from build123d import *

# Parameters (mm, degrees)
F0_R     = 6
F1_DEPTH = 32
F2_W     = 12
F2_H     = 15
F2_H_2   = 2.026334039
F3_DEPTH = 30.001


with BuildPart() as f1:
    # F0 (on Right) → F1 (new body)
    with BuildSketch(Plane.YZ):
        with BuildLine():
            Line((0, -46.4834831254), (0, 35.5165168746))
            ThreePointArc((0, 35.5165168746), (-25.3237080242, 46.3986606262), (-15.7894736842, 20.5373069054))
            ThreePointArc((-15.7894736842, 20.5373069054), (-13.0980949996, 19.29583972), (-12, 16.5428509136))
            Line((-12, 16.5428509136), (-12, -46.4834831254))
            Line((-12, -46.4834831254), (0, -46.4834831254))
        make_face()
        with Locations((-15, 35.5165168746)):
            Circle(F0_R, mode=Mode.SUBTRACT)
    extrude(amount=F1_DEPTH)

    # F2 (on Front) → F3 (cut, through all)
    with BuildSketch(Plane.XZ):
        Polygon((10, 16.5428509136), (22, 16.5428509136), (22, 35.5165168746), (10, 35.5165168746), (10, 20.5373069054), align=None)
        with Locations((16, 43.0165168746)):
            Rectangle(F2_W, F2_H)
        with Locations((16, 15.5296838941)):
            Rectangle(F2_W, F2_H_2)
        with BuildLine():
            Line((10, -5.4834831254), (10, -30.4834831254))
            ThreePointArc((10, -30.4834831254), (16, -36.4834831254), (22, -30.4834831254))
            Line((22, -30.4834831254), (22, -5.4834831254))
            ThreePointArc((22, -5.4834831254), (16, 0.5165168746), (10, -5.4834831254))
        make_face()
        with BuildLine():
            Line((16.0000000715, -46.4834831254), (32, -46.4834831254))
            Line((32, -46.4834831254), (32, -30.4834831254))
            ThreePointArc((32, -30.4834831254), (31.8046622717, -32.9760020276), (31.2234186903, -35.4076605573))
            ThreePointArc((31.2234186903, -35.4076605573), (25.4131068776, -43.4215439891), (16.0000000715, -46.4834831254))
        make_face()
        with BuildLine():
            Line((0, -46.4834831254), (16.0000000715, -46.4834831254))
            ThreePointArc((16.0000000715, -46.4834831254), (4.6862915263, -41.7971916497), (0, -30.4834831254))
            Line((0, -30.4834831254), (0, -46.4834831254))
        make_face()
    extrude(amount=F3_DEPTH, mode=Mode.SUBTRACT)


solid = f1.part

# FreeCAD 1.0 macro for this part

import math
import FreeCAD as App
import Part
import Sketcher
from FreeCAD import Vector
Q = App.Units.Quantity


def add_polygon(sketch, points):
    """Adds a closed chain of lines whose ends are joined by coincident constraints."""
    first, n = sketch.GeometryCount, len(points)
    for a, b in zip(points, points[1:] + points[:1]):
        sketch.addGeometry(Part.LineSegment(App.Vector(*a, 0), App.Vector(*b, 0)), False)
    for i in range(n):
        sketch.addConstraint(Sketcher.Constraint("Coincident", first + i, 2, first + (i + 1) % n, 1))

doc = App.newDocument("Part")
params = doc.addObject("Spreadsheet::Sheet", "Params")
for row, (alias, value) in enumerate([
    ("sketch1_diameter", "12 mm"),
    ("sketch1_radius", "15 mm"),
    ("sketch1_radius2", "4 mm"),
    ("sketch1_width", "12 mm"),
    ("sketch1_height", "82 mm"),
    ("pad1_length", "32 mm"),
    ("sketch2_radius", "6 mm"),
    ("sketch2_radius2", "16 mm"),
    ("sketch2_height", "36 mm"),
    ("sketch2_height2", "25 mm"),
], start=1):
    params.set(f"A{row}", alias)
    params.set(f"B{row}", "=" + value)
    params.setAlias(f"B{row}", alias)

body = doc.addObject("PartDesign::Body", "Body")

# Sketch on YZ plane
sketch1 = doc.addObject("Sketcher::SketchObject", "Sketch")
body.addObject(sketch1)
sketch1.AttachmentSupport = (doc.YZ_Plane, [""])
sketch1.MapMode = "FlatFace"
sketch1.addGeometry(Part.LineSegment(Vector(0, -46.5, 0), Vector(0, 35.5, 0)), False)
sketch1.addGeometry(Part.ArcOfCircle(Part.Circle(Vector(-15, 35.5, 0), Vector(0, 0, 1), 15), math.radians(0), math.radians(267)), False)
sketch1.addGeometry(Part.ArcOfCircle(Part.Circle(Vector(-16, 16.5, 0), Vector(0, 0, 1), 4), math.radians(0), math.radians(87)), False)
sketch1.addGeometry(Part.LineSegment(Vector(-12, 16.5, 0), Vector(-12, -46.5, 0)), False)
sketch1.addGeometry(Part.LineSegment(Vector(-12, -46.5, 0), Vector(0, -46.5, 0)), False)
sketch1.addGeometry(Part.Circle(Vector(-15, 35.5, 0), Vector(0, 0, 1), 6), False)
sketch1.addConstraint(Sketcher.Constraint("Tangent", 0, 2, 1, 1))
sketch1.addConstraint(Sketcher.Constraint("Tangent", 1, 2, 2, 2))
sketch1.addConstraint(Sketcher.Constraint("Tangent", 2, 1, 3, 1))
sketch1.addConstraint(Sketcher.Constraint("Coincident", 3, 2, 4, 1))
sketch1.addConstraint(Sketcher.Constraint("Coincident", 4, 2, 0, 1))
sketch1.addConstraint(Sketcher.Constraint("Vertical", 0))
sketch1.addConstraint(Sketcher.Constraint("Vertical", 3))
sketch1.addConstraint(Sketcher.Constraint("Horizontal", 4))
sketch1.addConstraint(Sketcher.Constraint("Coincident", 5, 3, 1, 3))
sketch1.addConstraint(Sketcher.Constraint("PointOnObject", 0, 2, -2))
sketch1.addConstraint(Sketcher.Constraint("Diameter", 5, Q("12 mm")))
sketch1.addConstraint(Sketcher.Constraint("Radius", 1, Q("15 mm")))
sketch1.addConstraint(Sketcher.Constraint("Radius", 2, Q("4 mm")))
sketch1.addConstraint(Sketcher.Constraint("DistanceX", 4, 1, 4, 2, Q("12 mm")))
sketch1.addConstraint(Sketcher.Constraint("DistanceY", 0, 1, 0, 2, Q("82 mm")))
sketch1.addConstraint(Sketcher.Constraint("DistanceY", -1, 1, 2, 3, Q("16.542851 mm")))
sketch1.setExpression("Constraints[10]", "Params.sketch1_diameter")
sketch1.setExpression("Constraints[11]", "Params.sketch1_radius")
sketch1.setExpression("Constraints[12]", "Params.sketch1_radius2")
sketch1.setExpression("Constraints[13]", "Params.sketch1_width")
sketch1.setExpression("Constraints[14]", "Params.sketch1_height")
pad1 = doc.addObject("PartDesign::Pad", "Pad")
body.addObject(pad1)
pad1.Profile = sketch1
pad1.setExpression("Length", "Params.pad1_length")

# Sketch on XZ plane
sketch2 = doc.addObject("Sketcher::SketchObject", "Sketch001")
body.addObject(sketch2)
sketch2.AttachmentSupport = (doc.XZ_Plane, [""])
sketch2.MapMode = "FlatFace"
add_polygon(sketch2, [(22, 50.5), (10, 50.5), (10, 14.5), (22, 14.5)])  # lines 0-3
sketch2.addGeometry(Part.LineSegment(Vector(10, -5.5, 0), Vector(10, -30.5, 0)), False)  # 4
sketch2.addGeometry(Part.ArcOfCircle(Part.Circle(Vector(16, -30.5, 0), Vector(0, 0, 1), 6), math.radians(180), math.radians(360)), False)  # 5
sketch2.addGeometry(Part.LineSegment(Vector(22, -30.5, 0), Vector(22, -5.5, 0)), False)  # 6
sketch2.addGeometry(Part.ArcOfCircle(Part.Circle(Vector(16, -5.5, 0), Vector(0, 0, 1), 6), math.radians(0), math.radians(180)), False)  # 7
sketch2.addGeometry(Part.LineSegment(Vector(16, -46.5, 0), Vector(32, -46.5, 0)), False)  # 8
sketch2.addGeometry(Part.LineSegment(Vector(32, -46.5, 0), Vector(32, -30.5, 0)), False)  # 9
sketch2.addGeometry(Part.ArcOfCircle(Part.Circle(Vector(16, -30.5, 0), Vector(0, 0, 1), 16), math.radians(-17.92), math.radians(0)), False)  # 10
sketch2.addGeometry(Part.ArcOfCircle(Part.Circle(Vector(16, -30.5, 0), Vector(0, 0, 1), 16), math.radians(-90), math.radians(-18)), False)  # 11
sketch2.addGeometry(Part.LineSegment(Vector(0, -46.5, 0), Vector(16, -46.5, 0)), False)  # 12
sketch2.addGeometry(Part.ArcOfCircle(Part.Circle(Vector(16, -30.5, 0), Vector(0, 0, 1), 16), math.radians(180), math.radians(270)), False)  # 13
sketch2.addGeometry(Part.LineSegment(Vector(0, -30.5, 0), Vector(0, -46.5, 0)), False)  # 14
sketch2.addConstraint(Sketcher.Constraint("Tangent", 4, 2, 5, 1))
sketch2.addConstraint(Sketcher.Constraint("Tangent", 5, 2, 6, 1))
sketch2.addConstraint(Sketcher.Constraint("Tangent", 6, 2, 7, 1))
sketch2.addConstraint(Sketcher.Constraint("Tangent", 7, 2, 4, 1))
sketch2.addConstraint(Sketcher.Constraint("Coincident", 8, 2, 9, 1))
sketch2.addConstraint(Sketcher.Constraint("Tangent", 9, 2, 10, 2))
sketch2.addConstraint(Sketcher.Constraint("Tangent", 10, 1, 11, 2))
sketch2.addConstraint(Sketcher.Constraint("Tangent", 11, 1, 8, 1))
sketch2.addConstraint(Sketcher.Constraint("Tangent", 12, 2, 13, 2))
sketch2.addConstraint(Sketcher.Constraint("Tangent", 13, 1, 14, 1))
sketch2.addConstraint(Sketcher.Constraint("Coincident", 14, 2, 12, 1))
sketch2.addConstraint(Sketcher.Constraint("Horizontal", 0))
sketch2.addConstraint(Sketcher.Constraint("Vertical", 1))
sketch2.addConstraint(Sketcher.Constraint("Horizontal", 2))
sketch2.addConstraint(Sketcher.Constraint("Vertical", 3))
sketch2.addConstraint(Sketcher.Constraint("Vertical", 4))
sketch2.addConstraint(Sketcher.Constraint("Vertical", 6))
sketch2.addConstraint(Sketcher.Constraint("Horizontal", 8))
sketch2.addConstraint(Sketcher.Constraint("Vertical", 9))
sketch2.addConstraint(Sketcher.Constraint("Horizontal", 12))
sketch2.addConstraint(Sketcher.Constraint("Vertical", 14))
sketch2.addConstraint(Sketcher.Constraint("Coincident", 10, 3, 5, 3))
sketch2.addConstraint(Sketcher.Constraint("Coincident", 13, 3, 5, 3))
sketch2.addConstraint(Sketcher.Constraint("Coincident", 12, 2, 11, 1))
sketch2.addConstraint(Sketcher.Constraint("PointOnObject", 13, 1, -2))
sketch2.addConstraint(Sketcher.Constraint("Vertical", 1, 2, 4, 2))
sketch2.addConstraint(Sketcher.Constraint("Vertical", 3, 2, 5, 2))
sketch2.addConstraint(Sketcher.Constraint("Radius", 5, Q("6 mm")))
sketch2.addConstraint(Sketcher.Constraint("Radius", 10, Q("16 mm")))
sketch2.addConstraint(Sketcher.Constraint("DistanceY", 1, 2, 1, 1, Q("36 mm")))
sketch2.addConstraint(Sketcher.Constraint("DistanceY", 4, 2, 4, 1, Q("25 mm")))
sketch2.addConstraint(Sketcher.Constraint("DistanceY", 7, 3, 0, 2, Q("56 mm")))
sketch2.addConstraint(Sketcher.Constraint("DistanceX", -1, 1, 10, 1, Q("31.223419 mm")))
sketch2.addConstraint(Sketcher.Constraint("DistanceY", 10, 1, -1, 1, Q("35.407661 mm")))
sketch2.setExpression("Constraints[31]", "Params.sketch2_radius")
sketch2.setExpression("Constraints[32]", "Params.sketch2_radius2")
sketch2.setExpression("Constraints[33]", "Params.sketch2_height")
sketch2.setExpression("Constraints[34]", "Params.sketch2_height2")
pocket1 = doc.addObject("PartDesign::Pocket", "Pocket")
body.addObject(pocket1)
pocket1.Profile = sketch2
pocket1.Type = "ThroughAll"
pocket1.Reversed = True

doc.recompute()
